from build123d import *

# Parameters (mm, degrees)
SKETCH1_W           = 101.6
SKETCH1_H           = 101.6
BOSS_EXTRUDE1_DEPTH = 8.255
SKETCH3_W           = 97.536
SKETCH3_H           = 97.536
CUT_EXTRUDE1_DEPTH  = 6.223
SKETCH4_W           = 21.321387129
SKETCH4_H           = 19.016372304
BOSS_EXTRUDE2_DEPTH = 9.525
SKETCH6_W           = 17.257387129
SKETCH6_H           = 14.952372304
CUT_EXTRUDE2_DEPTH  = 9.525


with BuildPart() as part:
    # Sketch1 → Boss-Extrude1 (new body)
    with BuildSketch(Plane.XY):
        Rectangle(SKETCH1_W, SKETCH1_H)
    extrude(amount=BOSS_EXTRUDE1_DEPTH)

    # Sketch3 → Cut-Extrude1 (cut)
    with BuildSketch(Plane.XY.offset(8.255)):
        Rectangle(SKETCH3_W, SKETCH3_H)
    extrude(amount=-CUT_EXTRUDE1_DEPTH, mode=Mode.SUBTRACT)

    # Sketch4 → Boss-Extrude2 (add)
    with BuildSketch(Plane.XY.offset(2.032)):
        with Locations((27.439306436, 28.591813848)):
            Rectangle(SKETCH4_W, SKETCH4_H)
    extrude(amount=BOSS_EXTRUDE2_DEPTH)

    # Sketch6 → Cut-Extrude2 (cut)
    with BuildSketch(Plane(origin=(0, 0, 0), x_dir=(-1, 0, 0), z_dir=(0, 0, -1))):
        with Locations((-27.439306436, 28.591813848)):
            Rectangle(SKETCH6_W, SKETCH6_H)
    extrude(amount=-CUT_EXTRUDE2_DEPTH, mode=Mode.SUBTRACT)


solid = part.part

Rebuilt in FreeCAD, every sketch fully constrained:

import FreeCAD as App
import Part
import Sketcher
from FreeCAD import Vector
Q = App.Units.Quantity


def add_polygon(sketch, points):
    """Adds a closed chain of lines whose ends are joined by coincident constraints."""
    first, n = sketch.GeometryCount, len(points)
    for a, b in zip(points, points[1:] + points[:1]):
        sketch.addGeometry(Part.LineSegment(App.Vector(*a, 0), App.Vector(*b, 0)), False)
    for i in range(n):
        sketch.addConstraint(Sketcher.Constraint("Coincident", first + i, 2, first + (i + 1) % n, 1))

doc = App.newDocument("Part")
body = doc.addObject("PartDesign::Body", "Body")

# Sketch on XY plane
sketch1 = body.newObject("Sketcher::SketchObject", "Sketch")
sketch1.AttachmentSupport = (doc.getObject("XY_Plane"), [""])
sketch1.MapMode = "FlatFace"
add_polygon(sketch1, [(-51, 51), (-51, -51), (51, -51), (51, 51)])  # lines 0-3
sketch1.addConstraint(Sketcher.Constraint("Vertical", 0))
sketch1.addConstraint(Sketcher.Constraint("Horizontal", 1))
sketch1.addConstraint(Sketcher.Constraint("Vertical", 2))
sketch1.addConstraint(Sketcher.Constraint("Horizontal", 3))
sketch1.addConstraint(Sketcher.Constraint("Symmetric", 0, 2, 2, 2, -1, 1))
sketch1.addConstraint(Sketcher.Constraint("Equal", 3, 0))
sketch1.addConstraint(Sketcher.Constraint("DistanceX", 1, 1, 1, 2, Q("4 in")))
pad1 = body.newObject("PartDesign::Pad", "Pad")
pad1.Profile = sketch1
pad1.Length = Q("0.325 in")

# Sketch on XY plane
sketch2 = body.newObject("Sketcher::SketchObject", "Sketch001")
sketch2.AttachmentSupport = (doc.getObject("XY_Plane"), [""])
sketch2.MapMode = "FlatFace"
sketch2.AttachmentOffset = App.Placement(Vector(0, 0, 0.325 * 25.4), App.Rotation())
add_polygon(sketch2, [(-49, 49), (-49, -49), (49, -49), (49, 49)])  # lines 0-3
sketch2.addConstraint(Sketcher.Constraint("Vertical", 0))
sketch2.addConstraint(Sketcher.Constraint("Horizontal", 1))
sketch2.addConstraint(Sketcher.Constraint("Vertical", 2))
sketch2.addConstraint(Sketcher.Constraint("Horizontal", 3))
sketch2.addConstraint(Sketcher.Constraint("Symmetric", 0, 2, 2, 2, -1, 1))
sketch2.addConstraint(Sketcher.Constraint("Equal", 3, 0))
sketch2.addConstraint(Sketcher.Constraint("DistanceX", 1, 1, 1, 2, Q("3.84 in")))
pocket1 = body.newObject("PartDesign::Pocket", "Pocket")
pocket1.Profile = sketch2
pocket1.Length = Q("0.245 in")

# Sketch on XY plane
sketch3 = body.newObject("Sketcher::SketchObject", "Sketch002")
sketch3.AttachmentSupport = (doc.getObject("XY_Plane"), [""])
sketch3.MapMode = "FlatFace"
sketch3.AttachmentOffset = App.Placement(Vector(0, 0, 0.08 * 25.4), App.Rotation())
add_polygon(sketch3, [(17, 38), (17, 19), (38, 19), (38, 38)])  # lines 0-3
sketch3.addConstraint(Sketcher.Constraint("Vertical", 0))
sketch3.addConstraint(Sketcher.Constraint("Horizontal", 1))
sketch3.addConstraint(Sketcher.Constraint("Vertical", 2))
sketch3.addConstraint(Sketcher.Constraint("Horizontal", 3))
sketch3.addConstraint(Sketcher.Constraint("DistanceX", -1, 1, 1, 2, Q("1.5 in")))
sketch3.addConstraint(Sketcher.Constraint("DistanceY", -1, 1, 2, 2, Q("1.5 in")))
sketch3.addConstraint(Sketcher.Constraint("DistanceX", 1, 1, 1, 2, Q("21.321387 mm")))
sketch3.addConstraint(Sketcher.Constraint("DistanceY", 0, 2, 0, 1, Q("19.016372 mm")))
pad2 = body.newObject("PartDesign::Pad", "Pad001")
pad2.Profile = sketch3
pad2.Length = Q("0.375 in")

# Sketch on XY plane
sketch4 = body.newObject("Sketcher::SketchObject", "Sketch003")
sketch4.AttachmentSupport = (doc.getObject("XY_Plane"), [""])
sketch4.MapMode = "FlatFace"
add_polygon(sketch4, [(36, 36), (36, 21), (19, 21), (19, 36)])  # lines 0-3
sketch4.addConstraint(Sketcher.Constraint("Vertical", 0))
sketch4.addConstraint(Sketcher.Constraint("Horizontal", 1))
sketch4.addConstraint(Sketcher.Constraint("Vertical", 2))
sketch4.addConstraint(Sketcher.Constraint("Horizontal", 3))
sketch4.addConstraint(Sketcher.Constraint("DistanceX", -1, 1, 0, 2, Q("1.42 in")))
sketch4.addConstraint(Sketcher.Constraint("DistanceY", -1, 1, 2, 2, Q("1.42 in")))
sketch4.addConstraint(Sketcher.Constraint("DistanceX", 1, 2, 1, 1, Q("17.257387 mm")))
sketch4.addConstraint(Sketcher.Constraint("DistanceY", 0, 2, 0, 1, Q("14.952372 mm")))
pocket2 = body.newObject("PartDesign::Pocket", "Pocket001")
pocket2.Profile = sketch4
pocket2.Length = Q("0.375 in")
pocket2.Reversed = True

doc.recompute()
